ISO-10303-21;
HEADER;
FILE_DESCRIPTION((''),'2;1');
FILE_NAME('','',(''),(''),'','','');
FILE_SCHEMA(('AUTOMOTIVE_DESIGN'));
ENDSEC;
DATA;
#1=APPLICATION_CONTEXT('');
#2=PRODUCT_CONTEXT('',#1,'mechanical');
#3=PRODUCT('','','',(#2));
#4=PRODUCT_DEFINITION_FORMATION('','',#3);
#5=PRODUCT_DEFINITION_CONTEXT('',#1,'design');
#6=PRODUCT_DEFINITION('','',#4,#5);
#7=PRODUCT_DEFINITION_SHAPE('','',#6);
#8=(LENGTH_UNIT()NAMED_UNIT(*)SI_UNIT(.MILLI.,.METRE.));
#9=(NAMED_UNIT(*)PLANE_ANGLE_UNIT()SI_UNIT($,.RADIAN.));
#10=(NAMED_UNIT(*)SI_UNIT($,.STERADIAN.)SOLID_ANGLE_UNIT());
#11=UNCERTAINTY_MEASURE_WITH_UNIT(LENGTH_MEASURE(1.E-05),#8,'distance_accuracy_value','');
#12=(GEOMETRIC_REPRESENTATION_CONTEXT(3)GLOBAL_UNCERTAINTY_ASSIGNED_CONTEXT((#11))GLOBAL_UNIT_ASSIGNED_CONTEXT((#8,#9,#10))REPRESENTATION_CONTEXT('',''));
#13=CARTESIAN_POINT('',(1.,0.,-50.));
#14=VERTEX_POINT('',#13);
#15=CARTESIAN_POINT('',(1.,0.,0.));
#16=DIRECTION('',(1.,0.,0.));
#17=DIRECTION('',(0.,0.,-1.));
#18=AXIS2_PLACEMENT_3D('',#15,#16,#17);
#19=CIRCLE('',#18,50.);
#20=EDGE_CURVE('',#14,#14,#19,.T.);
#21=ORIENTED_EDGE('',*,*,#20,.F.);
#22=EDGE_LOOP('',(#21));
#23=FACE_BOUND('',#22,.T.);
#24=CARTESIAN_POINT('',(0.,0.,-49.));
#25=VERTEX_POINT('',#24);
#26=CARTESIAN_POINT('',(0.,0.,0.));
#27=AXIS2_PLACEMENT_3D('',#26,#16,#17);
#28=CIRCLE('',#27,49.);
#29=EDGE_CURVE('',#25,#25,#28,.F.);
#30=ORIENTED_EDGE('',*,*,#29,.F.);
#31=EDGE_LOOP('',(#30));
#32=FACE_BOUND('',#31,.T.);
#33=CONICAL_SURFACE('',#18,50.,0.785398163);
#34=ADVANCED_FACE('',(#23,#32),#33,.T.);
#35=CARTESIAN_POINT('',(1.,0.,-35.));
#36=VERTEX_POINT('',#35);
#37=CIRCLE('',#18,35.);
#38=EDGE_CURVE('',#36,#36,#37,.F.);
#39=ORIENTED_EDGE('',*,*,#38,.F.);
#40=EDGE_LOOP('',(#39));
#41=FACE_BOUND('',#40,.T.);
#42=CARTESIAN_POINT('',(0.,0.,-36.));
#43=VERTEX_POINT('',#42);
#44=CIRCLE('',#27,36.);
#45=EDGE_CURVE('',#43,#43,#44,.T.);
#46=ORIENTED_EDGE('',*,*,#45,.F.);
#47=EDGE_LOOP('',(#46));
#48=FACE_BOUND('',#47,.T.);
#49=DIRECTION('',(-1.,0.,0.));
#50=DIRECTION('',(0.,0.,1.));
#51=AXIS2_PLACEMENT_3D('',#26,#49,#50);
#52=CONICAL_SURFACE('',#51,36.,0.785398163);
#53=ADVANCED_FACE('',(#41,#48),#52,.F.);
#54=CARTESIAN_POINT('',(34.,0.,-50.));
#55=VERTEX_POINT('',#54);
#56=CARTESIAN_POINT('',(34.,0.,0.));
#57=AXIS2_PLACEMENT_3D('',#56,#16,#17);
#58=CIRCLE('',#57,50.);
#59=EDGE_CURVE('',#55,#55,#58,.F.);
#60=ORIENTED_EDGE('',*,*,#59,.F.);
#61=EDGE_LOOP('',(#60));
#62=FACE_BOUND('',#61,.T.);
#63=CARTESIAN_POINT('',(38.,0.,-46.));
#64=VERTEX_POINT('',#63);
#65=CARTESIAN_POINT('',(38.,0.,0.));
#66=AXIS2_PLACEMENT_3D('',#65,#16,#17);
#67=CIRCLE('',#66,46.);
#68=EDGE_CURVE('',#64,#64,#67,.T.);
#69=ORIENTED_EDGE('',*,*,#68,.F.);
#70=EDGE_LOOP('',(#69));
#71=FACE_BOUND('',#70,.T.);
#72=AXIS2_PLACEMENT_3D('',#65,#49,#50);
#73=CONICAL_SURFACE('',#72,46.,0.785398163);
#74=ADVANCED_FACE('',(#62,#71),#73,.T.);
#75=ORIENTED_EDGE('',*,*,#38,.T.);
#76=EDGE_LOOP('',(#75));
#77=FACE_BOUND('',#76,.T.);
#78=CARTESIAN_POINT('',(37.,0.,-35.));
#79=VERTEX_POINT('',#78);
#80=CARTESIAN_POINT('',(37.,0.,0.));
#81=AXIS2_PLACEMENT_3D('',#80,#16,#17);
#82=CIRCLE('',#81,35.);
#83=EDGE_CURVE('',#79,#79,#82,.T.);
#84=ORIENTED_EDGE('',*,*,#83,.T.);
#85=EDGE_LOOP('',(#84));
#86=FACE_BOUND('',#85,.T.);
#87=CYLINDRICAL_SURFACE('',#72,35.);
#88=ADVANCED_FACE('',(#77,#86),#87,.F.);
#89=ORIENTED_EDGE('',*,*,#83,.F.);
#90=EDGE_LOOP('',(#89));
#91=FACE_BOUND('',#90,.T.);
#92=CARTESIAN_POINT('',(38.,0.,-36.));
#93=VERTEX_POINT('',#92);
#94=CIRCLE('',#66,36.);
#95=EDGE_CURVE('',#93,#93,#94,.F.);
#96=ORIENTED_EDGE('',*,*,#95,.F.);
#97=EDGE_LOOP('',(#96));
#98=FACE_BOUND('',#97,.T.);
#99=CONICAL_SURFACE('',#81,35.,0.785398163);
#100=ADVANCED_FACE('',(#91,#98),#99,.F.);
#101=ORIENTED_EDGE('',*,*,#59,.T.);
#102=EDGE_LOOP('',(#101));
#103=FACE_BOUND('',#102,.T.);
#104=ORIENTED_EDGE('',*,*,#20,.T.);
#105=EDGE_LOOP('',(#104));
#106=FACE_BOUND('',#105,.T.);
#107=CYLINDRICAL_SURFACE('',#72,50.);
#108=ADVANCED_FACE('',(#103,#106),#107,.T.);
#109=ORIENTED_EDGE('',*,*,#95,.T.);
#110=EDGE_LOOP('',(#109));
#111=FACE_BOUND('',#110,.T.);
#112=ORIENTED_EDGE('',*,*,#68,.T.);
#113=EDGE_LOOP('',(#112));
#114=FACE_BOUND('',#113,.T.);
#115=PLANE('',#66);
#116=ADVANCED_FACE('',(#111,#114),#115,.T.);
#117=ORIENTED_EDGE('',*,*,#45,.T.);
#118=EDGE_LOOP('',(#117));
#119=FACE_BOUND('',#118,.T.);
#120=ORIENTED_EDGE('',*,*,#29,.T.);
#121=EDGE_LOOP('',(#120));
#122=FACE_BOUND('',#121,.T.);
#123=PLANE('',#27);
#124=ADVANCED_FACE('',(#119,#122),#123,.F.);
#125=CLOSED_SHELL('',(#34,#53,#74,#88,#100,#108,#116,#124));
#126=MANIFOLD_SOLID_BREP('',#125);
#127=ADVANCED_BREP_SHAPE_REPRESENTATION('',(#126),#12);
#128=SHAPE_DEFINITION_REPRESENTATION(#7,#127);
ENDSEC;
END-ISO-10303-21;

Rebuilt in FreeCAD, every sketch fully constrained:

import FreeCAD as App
import Part
import Sketcher

V = App.Vector


def edges_at(feature, points):
    """Names of the edges that pass closest to the given points."""
    edges = feature.Shape.Edges
    near = lambda p: min(range(len(edges)), key=lambda i: edges[i].distToShape(Part.Vertex(*p))[0])
    return sorted({f"Edge{near(p) + 1}" for p in points})

doc = App.newDocument("Part")
params = doc.addObject("Spreadsheet::Sheet", "Params")
for row, (alias, value) in enumerate([
    ("sketch1_diameter", "100 mm"),
    ("sketch1_diameter2", "70 mm"),
    ("pad1_length", "38 mm"),
    ("chamfer_size", "1 mm"),
    ("chamfer2_size", "4 mm"),
], start=1):
    params.set(f"A{row}", alias)
    params.set(f"B{row}", "=" + value)
    params.setAlias(f"B{row}", alias)

body = doc.addObject("PartDesign::Body", "Body")

# Sketch on YZ plane
sketch1 = body.newObject("Sketcher::SketchObject", "Sketch")
sketch1.AttachmentSupport = (doc.getObject("YZ_Plane"), [""])
sketch1.MapMode = "FlatFace"
sketch1.addGeometry([
    Part.Circle(V(0, 0, 0), V(0, 0, 1), 50),
    Part.Circle(V(0, 0, 0), V(0, 0, 1), 35),
], False)
sketch1.addConstraint([
    Sketcher.Constraint("Coincident", 0, 3, -1, 1),
    Sketcher.Constraint("Coincident", 1, 3, -1, 1),
    Sketcher.Constraint("Diameter", 0, 100.0),
    Sketcher.Constraint("Diameter", 1, 70.0),
])
sketch1.setExpression("Constraints[2]", "Params.sketch1_diameter")
sketch1.setExpression("Constraints[3]", "Params.sketch1_diameter2")
pad1 = body.newObject("PartDesign::Pad", "Pad")
pad1.Profile = sketch1
pad1.setExpression("Length", "Params.pad1_length")
doc.recompute()

chamfer = body.newObject("PartDesign::Chamfer", "Chamfer")
chamfer.Base = (pad1, edges_at(pad1, [(0, 0, 50), (0, 0, 35), (38, 0, 35)]))
chamfer.setExpression("Size", "Params.chamfer_size")
doc.recompute()

chamfer2 = body.newObject("PartDesign::Chamfer", "Chamfer001")
chamfer2.Base = (chamfer, edges_at(chamfer, [(38, 0, 50)]))
chamfer2.setExpression("Size", "Params.chamfer2_size")

doc.recompute()
